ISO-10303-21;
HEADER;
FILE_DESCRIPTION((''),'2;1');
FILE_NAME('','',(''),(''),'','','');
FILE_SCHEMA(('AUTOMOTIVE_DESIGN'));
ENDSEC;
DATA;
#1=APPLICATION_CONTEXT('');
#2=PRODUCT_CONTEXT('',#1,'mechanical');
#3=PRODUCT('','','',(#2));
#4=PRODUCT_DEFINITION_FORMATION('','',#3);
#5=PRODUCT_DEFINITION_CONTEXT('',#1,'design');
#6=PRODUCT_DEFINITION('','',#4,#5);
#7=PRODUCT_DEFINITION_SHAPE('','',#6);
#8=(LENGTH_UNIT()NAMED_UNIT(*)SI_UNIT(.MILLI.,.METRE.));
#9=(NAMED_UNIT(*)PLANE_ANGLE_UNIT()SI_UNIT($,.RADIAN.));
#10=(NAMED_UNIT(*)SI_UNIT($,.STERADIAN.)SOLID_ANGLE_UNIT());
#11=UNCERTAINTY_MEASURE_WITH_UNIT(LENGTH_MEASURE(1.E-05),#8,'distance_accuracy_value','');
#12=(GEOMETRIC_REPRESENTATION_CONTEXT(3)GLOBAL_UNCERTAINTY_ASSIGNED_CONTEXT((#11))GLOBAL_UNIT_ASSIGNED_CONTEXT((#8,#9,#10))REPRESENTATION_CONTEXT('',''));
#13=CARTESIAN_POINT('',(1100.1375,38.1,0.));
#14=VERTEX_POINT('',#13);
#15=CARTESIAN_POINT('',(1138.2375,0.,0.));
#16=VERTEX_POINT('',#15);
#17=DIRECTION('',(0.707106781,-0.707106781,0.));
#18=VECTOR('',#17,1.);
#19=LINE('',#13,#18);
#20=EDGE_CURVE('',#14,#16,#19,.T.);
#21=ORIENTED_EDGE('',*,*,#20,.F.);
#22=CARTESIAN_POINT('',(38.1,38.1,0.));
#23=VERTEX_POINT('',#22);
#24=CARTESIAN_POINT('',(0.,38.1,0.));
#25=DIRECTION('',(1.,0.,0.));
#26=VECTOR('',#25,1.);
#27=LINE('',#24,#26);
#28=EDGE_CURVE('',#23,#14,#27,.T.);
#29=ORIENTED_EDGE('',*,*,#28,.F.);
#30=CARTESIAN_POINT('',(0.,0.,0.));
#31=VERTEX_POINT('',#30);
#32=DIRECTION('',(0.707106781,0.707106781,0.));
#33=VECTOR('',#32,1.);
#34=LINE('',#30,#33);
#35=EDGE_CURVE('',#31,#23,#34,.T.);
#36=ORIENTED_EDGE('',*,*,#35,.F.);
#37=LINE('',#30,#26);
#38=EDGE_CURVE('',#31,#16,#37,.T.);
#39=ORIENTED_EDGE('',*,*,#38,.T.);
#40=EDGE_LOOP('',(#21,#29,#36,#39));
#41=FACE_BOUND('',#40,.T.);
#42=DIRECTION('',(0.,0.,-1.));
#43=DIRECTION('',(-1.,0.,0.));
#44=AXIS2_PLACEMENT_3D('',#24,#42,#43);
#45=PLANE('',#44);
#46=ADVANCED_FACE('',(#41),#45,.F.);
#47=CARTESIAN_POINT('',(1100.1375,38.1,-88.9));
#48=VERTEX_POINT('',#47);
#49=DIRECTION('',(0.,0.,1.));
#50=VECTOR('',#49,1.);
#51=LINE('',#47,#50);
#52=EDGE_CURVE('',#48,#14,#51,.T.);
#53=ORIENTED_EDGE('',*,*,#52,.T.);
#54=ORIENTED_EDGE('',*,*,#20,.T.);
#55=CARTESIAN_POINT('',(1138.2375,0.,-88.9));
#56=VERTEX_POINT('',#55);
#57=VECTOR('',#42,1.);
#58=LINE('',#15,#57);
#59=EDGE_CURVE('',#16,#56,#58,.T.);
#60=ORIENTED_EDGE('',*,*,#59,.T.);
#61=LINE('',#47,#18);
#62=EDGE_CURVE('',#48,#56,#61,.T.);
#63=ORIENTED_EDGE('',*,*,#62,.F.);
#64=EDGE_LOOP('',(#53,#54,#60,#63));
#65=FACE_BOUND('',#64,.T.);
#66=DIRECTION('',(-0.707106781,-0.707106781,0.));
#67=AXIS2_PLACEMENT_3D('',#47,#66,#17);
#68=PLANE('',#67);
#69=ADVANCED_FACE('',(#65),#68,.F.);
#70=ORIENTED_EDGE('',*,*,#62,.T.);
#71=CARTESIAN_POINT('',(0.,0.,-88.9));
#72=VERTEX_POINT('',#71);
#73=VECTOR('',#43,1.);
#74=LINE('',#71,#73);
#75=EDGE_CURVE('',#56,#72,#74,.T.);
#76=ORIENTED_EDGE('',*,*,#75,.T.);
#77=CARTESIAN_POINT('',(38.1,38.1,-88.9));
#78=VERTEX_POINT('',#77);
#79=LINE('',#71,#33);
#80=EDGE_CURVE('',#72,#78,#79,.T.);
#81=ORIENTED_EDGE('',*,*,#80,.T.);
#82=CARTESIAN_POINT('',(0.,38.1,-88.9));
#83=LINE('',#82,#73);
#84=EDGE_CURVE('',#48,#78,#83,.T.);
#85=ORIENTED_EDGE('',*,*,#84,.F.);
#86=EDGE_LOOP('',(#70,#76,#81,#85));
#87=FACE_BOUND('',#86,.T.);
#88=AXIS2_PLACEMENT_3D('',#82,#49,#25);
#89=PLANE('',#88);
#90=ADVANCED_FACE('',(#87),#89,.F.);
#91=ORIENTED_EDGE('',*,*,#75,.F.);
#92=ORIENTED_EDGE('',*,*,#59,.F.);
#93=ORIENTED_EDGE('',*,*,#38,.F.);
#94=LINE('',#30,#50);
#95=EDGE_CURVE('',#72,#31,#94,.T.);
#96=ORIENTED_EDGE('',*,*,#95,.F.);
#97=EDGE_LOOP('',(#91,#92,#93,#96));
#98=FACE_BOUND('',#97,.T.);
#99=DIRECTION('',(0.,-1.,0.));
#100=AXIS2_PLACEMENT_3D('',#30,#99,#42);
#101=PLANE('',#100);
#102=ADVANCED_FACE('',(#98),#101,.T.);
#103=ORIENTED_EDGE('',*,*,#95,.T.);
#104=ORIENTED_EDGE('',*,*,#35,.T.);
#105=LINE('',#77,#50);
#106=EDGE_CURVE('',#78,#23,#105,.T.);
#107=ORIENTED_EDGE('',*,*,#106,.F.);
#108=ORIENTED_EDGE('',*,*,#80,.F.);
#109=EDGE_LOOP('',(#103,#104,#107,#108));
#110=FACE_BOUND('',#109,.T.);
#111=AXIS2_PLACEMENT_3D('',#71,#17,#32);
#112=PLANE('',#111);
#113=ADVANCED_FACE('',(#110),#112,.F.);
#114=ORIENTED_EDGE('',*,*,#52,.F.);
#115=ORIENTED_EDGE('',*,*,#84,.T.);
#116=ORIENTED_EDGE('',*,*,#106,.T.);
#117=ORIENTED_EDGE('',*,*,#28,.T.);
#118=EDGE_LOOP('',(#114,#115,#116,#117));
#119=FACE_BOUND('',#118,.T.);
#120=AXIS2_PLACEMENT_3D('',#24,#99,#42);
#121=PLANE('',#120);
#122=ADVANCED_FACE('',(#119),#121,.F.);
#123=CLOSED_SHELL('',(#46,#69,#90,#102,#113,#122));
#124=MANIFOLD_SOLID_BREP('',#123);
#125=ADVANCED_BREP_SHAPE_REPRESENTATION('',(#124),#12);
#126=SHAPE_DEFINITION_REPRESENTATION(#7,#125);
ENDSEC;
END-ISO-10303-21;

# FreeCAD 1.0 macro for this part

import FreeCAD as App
import Part
import Sketcher
Q = App.Units.Quantity

doc = App.newDocument("Part")
body = doc.addObject("PartDesign::Body", "Body")

# Sketch on XZ plane
sketch1 = body.newObject("Sketcher::SketchObject", "Sketch")
sketch1.AttachmentSupport = (doc.getObject("XZ_Plane"), [""])
sketch1.MapMode = "FlatFace"
sketch1.addGeometry([
    Part.LineSegment(App.Vector(0, -88.9, 0), App.Vector(0, 0, 0)),
    Part.LineSegment(App.Vector(0, 0, 0), App.Vector(1138.2375, 0, 0)),
    Part.LineSegment(App.Vector(1138.2375, 0, 0), App.Vector(1138.2375, -88.9, 0)),
    Part.LineSegment(App.Vector(1138.2375, -88.9, 0), App.Vector(0, -88.9, 0)),
], False)
sketch1.addConstraint([
    Sketcher.Constraint("Coincident", 0, 2, 1, 1),
    Sketcher.Constraint("Coincident", 1, 2, 2, 1),
    Sketcher.Constraint("Coincident", 2, 2, 3, 1),
    Sketcher.Constraint("Coincident", 3, 2, 0, 1),
    Sketcher.Constraint("Vertical", 0),
    Sketcher.Constraint("Horizontal", 1),
    Sketcher.Constraint("Vertical", 2),
    Sketcher.Constraint("Horizontal", 3),
    Sketcher.Constraint("Coincident", 0, 2, -1, 1),
    Sketcher.Constraint("DistanceY", 0, 1, 0, 2, Q("3.5 in")),
    Sketcher.Constraint("DistanceX", 1, 1, 1, 2, Q("44.8125 in")),
])
pad1 = body.newObject("PartDesign::Pad", "Pad")
pad1.Profile = sketch1
pad1.Length = Q("1.5 in")
pad1.Reversed = True

# Sketch on XY plane
sketch2 = body.newObject("Sketcher::SketchObject", "Sketch001")
sketch2.AttachmentSupport = (doc.getObject("XY_Plane"), [""])
sketch2.MapMode = "FlatFace"
sketch2.addGeometry([
    Part.LineSegment(App.Vector(0, 0, 0), App.Vector(38.1, 38.1, 0)),  # 0
    Part.LineSegment(App.Vector(38.1, 38.1, 0), App.Vector(0, 38.1, 0)),  # 1
    Part.LineSegment(App.Vector(0, 38.1, 0), App.Vector(0, 0, 0)),  # 2
    Part.LineSegment(App.Vector(1138.2375, 0, 0), App.Vector(1138.2375, 38.1, 0)),  # 3
    Part.LineSegment(App.Vector(1138.2375, 38.1, 0), App.Vector(1100.1375, 38.1, 0)),  # 4
    Part.LineSegment(App.Vector(1100.1375, 38.1, 0), App.Vector(1138.2375, 0, 0)),  # 5
], False)
sketch2.addConstraint([
    Sketcher.Constraint("Coincident", 0, 2, 1, 1),
    Sketcher.Constraint("Coincident", 1, 2, 2, 1),
    Sketcher.Constraint("Coincident", 2, 2, 0, 1),
    Sketcher.Constraint("Coincident", 3, 2, 4, 1),
    Sketcher.Constraint("Coincident", 4, 2, 5, 1),
    Sketcher.Constraint("Coincident", 5, 2, 3, 1),
    Sketcher.Constraint("Horizontal", 1),
    Sketcher.Constraint("Vertical", 2),
    Sketcher.Constraint("Vertical", 3),
    Sketcher.Constraint("Horizontal", 4),
    Sketcher.Constraint("Coincident", 2, 2, -1, 1),
    Sketcher.Constraint("PointOnObject", 5, 2, -1),
    Sketcher.Constraint("Perpendicular", 0, 5),
    Sketcher.Constraint("Horizontal", 1, 2, 3, 2),
    Sketcher.Constraint("Equal", 1, 4),
    Sketcher.Constraint("DistanceX", 1, 2, 1, 1, Q("1.5 in")),
    Sketcher.Constraint("DistanceX", -1, 1, 3, 2, Q("44.8125 in")),
])
pocket1 = body.newObject("PartDesign::Pocket", "Pocket")
pocket1.Profile = sketch2
pocket1.Type = "ThroughAll"

doc.recompute()
